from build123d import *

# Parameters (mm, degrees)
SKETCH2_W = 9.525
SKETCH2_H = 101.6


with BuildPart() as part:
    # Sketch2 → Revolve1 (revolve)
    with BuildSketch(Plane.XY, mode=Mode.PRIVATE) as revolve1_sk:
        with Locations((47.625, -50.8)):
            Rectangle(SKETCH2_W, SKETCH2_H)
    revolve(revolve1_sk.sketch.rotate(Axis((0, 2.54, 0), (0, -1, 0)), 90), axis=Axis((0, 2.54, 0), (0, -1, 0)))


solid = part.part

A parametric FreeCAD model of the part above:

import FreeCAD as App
import Part
import Sketcher
Q = App.Units.Quantity


def add_polygon(sketch, points):
    """Adds a closed chain of lines whose ends are joined by coincident constraints."""
    first, n = sketch.GeometryCount, len(points)
    for a, b in zip(points, points[1:] + points[:1]):
        sketch.addGeometry(Part.LineSegment(App.Vector(*a, 0), App.Vector(*b, 0)), False)
    for i in range(n):
        sketch.addConstraint(Sketcher.Constraint("Coincident", first + i, 2, first + (i + 1) % n, 1))

doc = App.newDocument("Part")
body = doc.addObject("PartDesign::Body", "Body")

sketch1 = doc.addObject("Sketcher::SketchObject", "Sketch")
body.addObject(sketch1)
sketch1.AttachmentSupport = (doc.XY_Plane, [""])
sketch1.MapMode = "FlatFace"
add_polygon(sketch1, [(43, 0), (43, -102), (52, -102), (52, 0)])
sketch1.addConstraint(Sketcher.Constraint("Vertical", 0))
sketch1.addConstraint(Sketcher.Constraint("Horizontal", 1))
sketch1.addConstraint(Sketcher.Constraint("Vertical", 2))
sketch1.addConstraint(Sketcher.Constraint("Horizontal", 3))
sketch1.addConstraint(Sketcher.Constraint("PointOnObject", 2, 2, -1))
sketch1.addConstraint(Sketcher.Constraint("DistanceY", 0, 2, 0, 1, Q("4 in")))
sketch1.addConstraint(Sketcher.Constraint("DistanceX", 1, 1, 1, 2, Q("0.375 in")))
sketch1.addConstraint(Sketcher.Constraint("DistanceX", -1, 1, 0, 2, Q("1.6875 in")))
revolution = doc.addObject("PartDesign::Revolution", "Revolution")
body.addObject(revolution)
revolution.Profile = sketch1
revolution.ReferenceAxis = (sketch1, ["V_Axis"])
revolution.Angle = 360

doc.recompute()
